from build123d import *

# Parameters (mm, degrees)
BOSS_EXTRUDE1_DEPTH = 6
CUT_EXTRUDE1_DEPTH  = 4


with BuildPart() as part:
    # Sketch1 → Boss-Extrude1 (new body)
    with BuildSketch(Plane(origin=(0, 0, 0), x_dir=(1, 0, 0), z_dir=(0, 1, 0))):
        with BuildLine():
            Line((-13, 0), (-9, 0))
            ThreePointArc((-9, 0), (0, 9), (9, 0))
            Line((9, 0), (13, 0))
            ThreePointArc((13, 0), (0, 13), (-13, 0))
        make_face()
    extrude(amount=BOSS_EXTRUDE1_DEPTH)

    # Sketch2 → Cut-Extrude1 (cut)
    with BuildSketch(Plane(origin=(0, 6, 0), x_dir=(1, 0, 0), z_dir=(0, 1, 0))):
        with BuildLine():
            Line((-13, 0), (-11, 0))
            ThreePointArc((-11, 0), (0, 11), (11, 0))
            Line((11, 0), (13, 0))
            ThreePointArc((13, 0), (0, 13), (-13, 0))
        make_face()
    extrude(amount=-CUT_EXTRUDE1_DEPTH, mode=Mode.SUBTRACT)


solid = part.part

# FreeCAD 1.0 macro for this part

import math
import FreeCAD as App
import Part
import Sketcher
Q = App.Units.Quantity

doc = App.newDocument("Part")
params = doc.addObject("Spreadsheet::Sheet", "Params")
for row, (alias, value) in enumerate([
    ("sketch1_radius", "9 mm"),
    ("sketch1_radius2", "13 mm"),
    ("pad1_length", "6 mm"),
    ("sketch2_radius", "11 mm"),
    ("sketch2_radius2", "13 mm"),
    ("pocket1_length", "4 mm"),
], start=1):
    params.set(f"A{row}", alias)
    params.set(f"B{row}", "=" + value)
    params.setAlias(f"B{row}", alias)

body = doc.addObject("PartDesign::Body", "Body")

sketch1 = body.newObject("Sketcher::SketchObject", "Sketch")
sketch1.AttachmentSupport = (doc.getObject("XZ_Plane"), [""])
sketch1.MapMode = "FlatFace"
sketch1.addGeometry(Part.LineSegment(App.Vector(-13, 0, 0), App.Vector(-9, 0, 0)), False)
sketch1.addGeometry(Part.ArcOfCircle(Part.Circle(App.Vector(0, 0, 0), App.Vector(0, 0, 1), 9), math.radians(180), math.radians(360)), False)
sketch1.addGeometry(Part.LineSegment(App.Vector(9, 0, 0), App.Vector(13, 0, 0)), False)
sketch1.addGeometry(Part.ArcOfCircle(Part.Circle(App.Vector(0, 0, 0), App.Vector(0, 0, 1), 13), math.radians(180), math.radians(360)), False)
sketch1.addConstraint(Sketcher.Constraint("Coincident", 0, 2, 1, 1))
sketch1.addConstraint(Sketcher.Constraint("Coincident", 1, 2, 2, 1))
sketch1.addConstraint(Sketcher.Constraint("Coincident", 2, 2, 3, 2))
sketch1.addConstraint(Sketcher.Constraint("Coincident", 3, 1, 0, 1))
sketch1.addConstraint(Sketcher.Constraint("Horizontal", 0))
sketch1.addConstraint(Sketcher.Constraint("Horizontal", 2))
sketch1.addConstraint(Sketcher.Constraint("Coincident", 1, 3, -1, 1))
sketch1.addConstraint(Sketcher.Constraint("Coincident", 3, 3, -1, 1))
sketch1.addConstraint(Sketcher.Constraint("PointOnObject", 0, 2, -1))
sketch1.addConstraint(Sketcher.Constraint("PointOnObject", 1, 2, -1))
sketch1.addConstraint(Sketcher.Constraint("Radius", 1, Q("9 mm")))
sketch1.addConstraint(Sketcher.Constraint("Radius", 3, Q("13 mm")))
sketch1.setExpression("Constraints[10]", "Params.sketch1_radius")
sketch1.setExpression("Constraints[11]", "Params.sketch1_radius2")
pad1 = body.newObject("PartDesign::Pad", "Pad")
pad1.Profile = sketch1
pad1.setExpression("Length", "Params.pad1_length")
pad1.Reversed = True

sketch2 = body.newObject("Sketcher::SketchObject", "Sketch001")
sketch2.AttachmentSupport = (doc.getObject("XZ_Plane"), [""])
sketch2.MapMode = "FlatFace"
sketch2.AttachmentOffset = App.Placement(App.Vector(0, 0, -6), App.Rotation())
sketch2.addGeometry(Part.LineSegment(App.Vector(-13, 0, 0), App.Vector(-11, 0, 0)), False)
sketch2.addGeometry(Part.ArcOfCircle(Part.Circle(App.Vector(0, 0, 0), App.Vector(0, 0, 1), 11), math.radians(180), math.radians(360)), False)
sketch2.addGeometry(Part.LineSegment(App.Vector(11, 0, 0), App.Vector(13, 0, 0)), False)
sketch2.addGeometry(Part.ArcOfCircle(Part.Circle(App.Vector(0, 0, 0), App.Vector(0, 0, 1), 13), math.radians(180), math.radians(360)), False)
sketch2.addConstraint(Sketcher.Constraint("Coincident", 0, 2, 1, 1))
sketch2.addConstraint(Sketcher.Constraint("Coincident", 1, 2, 2, 1))
sketch2.addConstraint(Sketcher.Constraint("Coincident", 2, 2, 3, 2))
sketch2.addConstraint(Sketcher.Constraint("Coincident", 3, 1, 0, 1))
sketch2.addConstraint(Sketcher.Constraint("Horizontal", 0))
sketch2.addConstraint(Sketcher.Constraint("Horizontal", 2))
sketch2.addConstraint(Sketcher.Constraint("Coincident", 1, 3, -1, 1))
sketch2.addConstraint(Sketcher.Constraint("Coincident", 3, 3, -1, 1))
sketch2.addConstraint(Sketcher.Constraint("PointOnObject", 0, 2, -1))
sketch2.addConstraint(Sketcher.Constraint("PointOnObject", 1, 2, -1))
sketch2.addConstraint(Sketcher.Constraint("Radius", 1, Q("11 mm")))
sketch2.addConstraint(Sketcher.Constraint("Radius", 3, Q("13 mm")))
sketch2.setExpression("Constraints[10]", "Params.sketch2_radius")
sketch2.setExpression("Constraints[11]", "Params.sketch2_radius2")
pocket1 = body.newObject("PartDesign::Pocket", "Pocket")
pocket1.Profile = sketch2
pocket1.setExpression("Length", "Params.pocket1_length")
pocket1.Reversed = True

doc.recompute()
